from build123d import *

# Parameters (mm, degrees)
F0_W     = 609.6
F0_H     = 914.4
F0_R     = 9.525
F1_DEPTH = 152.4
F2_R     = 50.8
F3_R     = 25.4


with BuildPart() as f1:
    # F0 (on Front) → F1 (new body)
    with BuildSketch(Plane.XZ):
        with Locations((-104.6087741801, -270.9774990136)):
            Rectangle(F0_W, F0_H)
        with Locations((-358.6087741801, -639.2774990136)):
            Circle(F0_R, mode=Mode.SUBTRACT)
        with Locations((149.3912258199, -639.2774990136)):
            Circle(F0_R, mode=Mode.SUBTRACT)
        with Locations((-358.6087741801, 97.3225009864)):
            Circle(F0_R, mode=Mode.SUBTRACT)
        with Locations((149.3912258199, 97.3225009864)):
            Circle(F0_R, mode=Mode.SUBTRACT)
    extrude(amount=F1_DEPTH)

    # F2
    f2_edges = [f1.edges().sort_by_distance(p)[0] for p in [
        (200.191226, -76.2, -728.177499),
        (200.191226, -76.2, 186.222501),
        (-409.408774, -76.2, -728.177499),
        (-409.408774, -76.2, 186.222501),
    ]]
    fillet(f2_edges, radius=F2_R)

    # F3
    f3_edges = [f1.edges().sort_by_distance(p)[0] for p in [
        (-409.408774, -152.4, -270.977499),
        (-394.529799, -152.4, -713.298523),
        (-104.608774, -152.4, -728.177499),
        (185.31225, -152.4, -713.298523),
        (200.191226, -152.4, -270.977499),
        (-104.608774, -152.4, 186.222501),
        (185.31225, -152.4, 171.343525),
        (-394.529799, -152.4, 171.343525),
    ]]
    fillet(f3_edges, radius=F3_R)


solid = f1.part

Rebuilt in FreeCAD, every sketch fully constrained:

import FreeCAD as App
import Part
import Sketcher

V = App.Vector
Q = App.Units.Quantity


def edges_at(feature, points):
    """Names of the edges that pass closest to the given points."""
    edges = feature.Shape.Edges
    near = lambda p: min(range(len(edges)), key=lambda i: edges[i].distToShape(Part.Vertex(*p))[0])
    return sorted({f"Edge{near(p) + 1}" for p in points})

doc = App.newDocument("Part")
params = doc.addObject("Spreadsheet::Sheet", "Params")
for row, (alias, value) in enumerate([
    ("sketch1_diameter", "0.75 in"),
    ("sketch1_width", "24 in"),
    ("sketch1_height", "36 in"),
    ("pad1_length", "6 in"),
    ("fillet_radius", "2 in"),
    ("fillet2_radius", "1 in"),
], start=1):
    params.set(f"A{row}", alias)
    params.set(f"B{row}", "=" + value)
    params.setAlias(f"B{row}", alias)

body = doc.addObject("PartDesign::Body", "Body")

# Sketch on XZ plane
sketch1 = body.newObject("Sketcher::SketchObject", "Sketch")
sketch1.AttachmentSupport = (doc.getObject("XZ_Plane"), [""])
sketch1.MapMode = "FlatFace"
sketch1.addGeometry([
    Part.LineSegment(V(-409, 186, 0), V(-409, -728, 0)),  # 0
    Part.LineSegment(V(-409, -728, 0), V(200, -728, 0)),  # 1
    Part.LineSegment(V(200, -728, 0), V(200, 186, 0)),  # 2
    Part.LineSegment(V(200, 186, 0), V(-409, 186, 0)),  # 3
    Part.Circle(V(-359, -639, 0), V(0, 0, 1), 10),  # 4
    Part.Circle(V(149, -639, 0), V(0, 0, 1), 10),  # 5
    Part.Circle(V(-359, 97, 0), V(0, 0, 1), 10),  # 6
    Part.Circle(V(149, 97, 0), V(0, 0, 1), 10),  # 7
], False)
sketch1.addConstraint([
    Sketcher.Constraint("Coincident", 0, 2, 1, 1),
    Sketcher.Constraint("Coincident", 1, 2, 2, 1),
    Sketcher.Constraint("Coincident", 2, 2, 3, 1),
    Sketcher.Constraint("Coincident", 3, 2, 0, 1),
    Sketcher.Constraint("Vertical", 0),
    Sketcher.Constraint("Horizontal", 1),
    Sketcher.Constraint("Vertical", 2),
    Sketcher.Constraint("Horizontal", 3),
    Sketcher.Constraint("Equal", 4, 5),
    Sketcher.Constraint("Equal", 5, 6),
    Sketcher.Constraint("Equal", 6, 7),
    Sketcher.Constraint("Horizontal", 4, 3, 5, 3),
    Sketcher.Constraint("Horizontal", 6, 3, 7, 3),
    Sketcher.Constraint("Vertical", 4, 3, 6, 3),
    Sketcher.Constraint("Vertical", 5, 3, 7, 3),
    Sketcher.Constraint("Diameter", 4, Q("0.75 in")),
    Sketcher.Constraint("DistanceX", 1, 1, 1, 2, Q("24 in")),
    Sketcher.Constraint("DistanceY", 0, 2, 0, 1, Q("36 in")),
    Sketcher.Constraint("DistanceX", 4, 3, 5, 3, Q("20 in")),
    Sketcher.Constraint("DistanceY", 4, 3, 6, 3, Q("29 in")),
    Sketcher.Constraint("DistanceX", 0, 2, 4, 3, Q("2 in")),
    Sketcher.Constraint("DistanceY", 0, 2, 4, 3, Q("3.5 in")),
    Sketcher.Constraint("DistanceY", 4, 3, -1, 1, Q("639.277499 mm")),
    Sketcher.Constraint("DistanceX", 4, 3, -1, 1, Q("358.608774 mm")),
])
sketch1.setExpression("Constraints[15]", "Params.sketch1_diameter")
sketch1.setExpression("Constraints[16]", "Params.sketch1_width")
sketch1.setExpression("Constraints[17]", "Params.sketch1_height")
pad1 = body.newObject("PartDesign::Pad", "Pad")
pad1.Profile = sketch1
pad1.setExpression("Length", "Params.pad1_length")
doc.recompute()

fillet = body.newObject("PartDesign::Fillet", "Fillet")
fillet.Base = (pad1, edges_at(pad1, [
    (200.191, -76.2, -728.177),
    (200.191, -76.2, 186.223),
    (-409.409, -76.2, -728.177),
    (-409.409, -76.2, 186.223),
]))
fillet.setExpression("Radius", "Params.fillet_radius")
doc.recompute()

fillet2 = body.newObject("PartDesign::Fillet", "Fillet001")
fillet2.Base = (fillet, edges_at(fillet, [
    (-409.409, -152.4, -270.977),
    (-394.53, -152.4, -713.299),
    (-104.609, -152.4, -728.177),
    (185.312, -152.4, -713.299),
    (200.191, -152.4, -270.977),
    (-104.609, -152.4, 186.223),
    (185.312, -152.4, 171.344),
    (-394.53, -152.4, 171.344),
]))
fillet2.setExpression("Radius", "Params.fillet2_radius")

doc.recompute()
